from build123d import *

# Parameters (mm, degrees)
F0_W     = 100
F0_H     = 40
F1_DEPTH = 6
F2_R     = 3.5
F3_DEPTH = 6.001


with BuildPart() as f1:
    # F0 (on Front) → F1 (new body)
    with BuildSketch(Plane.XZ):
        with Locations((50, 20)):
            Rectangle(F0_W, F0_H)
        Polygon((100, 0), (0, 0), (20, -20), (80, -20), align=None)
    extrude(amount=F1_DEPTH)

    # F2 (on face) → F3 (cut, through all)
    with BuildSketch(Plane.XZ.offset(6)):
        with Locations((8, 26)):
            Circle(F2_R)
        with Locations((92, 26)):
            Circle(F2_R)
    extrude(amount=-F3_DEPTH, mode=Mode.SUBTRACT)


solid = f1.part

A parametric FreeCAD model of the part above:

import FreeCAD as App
import Part
import Sketcher


def add_polygon(sketch, points):
    """Adds a closed chain of lines whose ends are joined by coincident constraints."""
    first, n = sketch.GeometryCount, len(points)
    for a, b in zip(points, points[1:] + points[:1]):
        sketch.addGeometry(Part.LineSegment(App.Vector(*a, 0), App.Vector(*b, 0)), False)
    for i in range(n):
        sketch.addConstraint(Sketcher.Constraint("Coincident", first + i, 2, first + (i + 1) % n, 1))

doc = App.newDocument("Part")
body = doc.addObject("PartDesign::Body", "Body")

# Sketch on XZ plane
sketch1 = doc.addObject("Sketcher::SketchObject", "Sketch")
body.addObject(sketch1)
sketch1.AttachmentSupport = (doc.XZ_Plane, [""])
sketch1.MapMode = "FlatFace"
add_polygon(sketch1, [(0, 40), (0, 0), (20, -20), (80, -20), (100, 0), (100, 40)])  # lines 0-5
sketch1.addConstraint([
    Sketcher.Constraint("Vertical", 0),
    Sketcher.Constraint("Horizontal", 2),
    Sketcher.Constraint("Vertical", 4),
    Sketcher.Constraint("Horizontal", 5),
    Sketcher.Constraint("Coincident", 0, 2, -1, 1),
    Sketcher.Constraint("PointOnObject", 3, 2, -1),
    Sketcher.Constraint("Perpendicular", 1, 3),
    Sketcher.Constraint("Equal", 1, 3),
    Sketcher.Constraint("DistanceX", 2, 1, 2, 2, 60.0),
    Sketcher.Constraint("DistanceX", 5, 2, 5, 1, 100.0),
    Sketcher.Constraint("DistanceY", 0, 2, 0, 1, 40.0),
])
pad1 = doc.addObject("PartDesign::Pad", "Pad")
body.addObject(pad1)
pad1.Profile = sketch1
pad1.Length = 6

# Sketch on XZ plane
sketch2 = doc.addObject("Sketcher::SketchObject", "Sketch001")
body.addObject(sketch2)
sketch2.AttachmentSupport = (doc.XZ_Plane, [""])
sketch2.MapMode = "FlatFace"
sketch2.AttachmentOffset = App.Placement(App.Vector(0, 0, 6), App.Rotation())
sketch2.addGeometry([
    Part.Circle(App.Vector(8, 26, 0), App.Vector(0, 0, 1), 3.5),
    Part.Circle(App.Vector(92, 26, 0), App.Vector(0, 0, 1), 3.5),
], False)
sketch2.addConstraint([
    Sketcher.Constraint("Equal", 0, 1),
    Sketcher.Constraint("Horizontal", 0, 3, 1, 3),
    Sketcher.Constraint("Diameter", 0, 7.0),
    Sketcher.Constraint("DistanceX", -1, 1, 0, 3, 8.0),
    Sketcher.Constraint("DistanceY", -1, 1, 0, 3, 26.0),
    Sketcher.Constraint("DistanceX", -1, 1, 1, 3, 92.0),
])
pocket1 = doc.addObject("PartDesign::Pocket", "Pocket")
body.addObject(pocket1)
pocket1.Profile = sketch2
pocket1.Type = "ThroughAll"

doc.recompute()
